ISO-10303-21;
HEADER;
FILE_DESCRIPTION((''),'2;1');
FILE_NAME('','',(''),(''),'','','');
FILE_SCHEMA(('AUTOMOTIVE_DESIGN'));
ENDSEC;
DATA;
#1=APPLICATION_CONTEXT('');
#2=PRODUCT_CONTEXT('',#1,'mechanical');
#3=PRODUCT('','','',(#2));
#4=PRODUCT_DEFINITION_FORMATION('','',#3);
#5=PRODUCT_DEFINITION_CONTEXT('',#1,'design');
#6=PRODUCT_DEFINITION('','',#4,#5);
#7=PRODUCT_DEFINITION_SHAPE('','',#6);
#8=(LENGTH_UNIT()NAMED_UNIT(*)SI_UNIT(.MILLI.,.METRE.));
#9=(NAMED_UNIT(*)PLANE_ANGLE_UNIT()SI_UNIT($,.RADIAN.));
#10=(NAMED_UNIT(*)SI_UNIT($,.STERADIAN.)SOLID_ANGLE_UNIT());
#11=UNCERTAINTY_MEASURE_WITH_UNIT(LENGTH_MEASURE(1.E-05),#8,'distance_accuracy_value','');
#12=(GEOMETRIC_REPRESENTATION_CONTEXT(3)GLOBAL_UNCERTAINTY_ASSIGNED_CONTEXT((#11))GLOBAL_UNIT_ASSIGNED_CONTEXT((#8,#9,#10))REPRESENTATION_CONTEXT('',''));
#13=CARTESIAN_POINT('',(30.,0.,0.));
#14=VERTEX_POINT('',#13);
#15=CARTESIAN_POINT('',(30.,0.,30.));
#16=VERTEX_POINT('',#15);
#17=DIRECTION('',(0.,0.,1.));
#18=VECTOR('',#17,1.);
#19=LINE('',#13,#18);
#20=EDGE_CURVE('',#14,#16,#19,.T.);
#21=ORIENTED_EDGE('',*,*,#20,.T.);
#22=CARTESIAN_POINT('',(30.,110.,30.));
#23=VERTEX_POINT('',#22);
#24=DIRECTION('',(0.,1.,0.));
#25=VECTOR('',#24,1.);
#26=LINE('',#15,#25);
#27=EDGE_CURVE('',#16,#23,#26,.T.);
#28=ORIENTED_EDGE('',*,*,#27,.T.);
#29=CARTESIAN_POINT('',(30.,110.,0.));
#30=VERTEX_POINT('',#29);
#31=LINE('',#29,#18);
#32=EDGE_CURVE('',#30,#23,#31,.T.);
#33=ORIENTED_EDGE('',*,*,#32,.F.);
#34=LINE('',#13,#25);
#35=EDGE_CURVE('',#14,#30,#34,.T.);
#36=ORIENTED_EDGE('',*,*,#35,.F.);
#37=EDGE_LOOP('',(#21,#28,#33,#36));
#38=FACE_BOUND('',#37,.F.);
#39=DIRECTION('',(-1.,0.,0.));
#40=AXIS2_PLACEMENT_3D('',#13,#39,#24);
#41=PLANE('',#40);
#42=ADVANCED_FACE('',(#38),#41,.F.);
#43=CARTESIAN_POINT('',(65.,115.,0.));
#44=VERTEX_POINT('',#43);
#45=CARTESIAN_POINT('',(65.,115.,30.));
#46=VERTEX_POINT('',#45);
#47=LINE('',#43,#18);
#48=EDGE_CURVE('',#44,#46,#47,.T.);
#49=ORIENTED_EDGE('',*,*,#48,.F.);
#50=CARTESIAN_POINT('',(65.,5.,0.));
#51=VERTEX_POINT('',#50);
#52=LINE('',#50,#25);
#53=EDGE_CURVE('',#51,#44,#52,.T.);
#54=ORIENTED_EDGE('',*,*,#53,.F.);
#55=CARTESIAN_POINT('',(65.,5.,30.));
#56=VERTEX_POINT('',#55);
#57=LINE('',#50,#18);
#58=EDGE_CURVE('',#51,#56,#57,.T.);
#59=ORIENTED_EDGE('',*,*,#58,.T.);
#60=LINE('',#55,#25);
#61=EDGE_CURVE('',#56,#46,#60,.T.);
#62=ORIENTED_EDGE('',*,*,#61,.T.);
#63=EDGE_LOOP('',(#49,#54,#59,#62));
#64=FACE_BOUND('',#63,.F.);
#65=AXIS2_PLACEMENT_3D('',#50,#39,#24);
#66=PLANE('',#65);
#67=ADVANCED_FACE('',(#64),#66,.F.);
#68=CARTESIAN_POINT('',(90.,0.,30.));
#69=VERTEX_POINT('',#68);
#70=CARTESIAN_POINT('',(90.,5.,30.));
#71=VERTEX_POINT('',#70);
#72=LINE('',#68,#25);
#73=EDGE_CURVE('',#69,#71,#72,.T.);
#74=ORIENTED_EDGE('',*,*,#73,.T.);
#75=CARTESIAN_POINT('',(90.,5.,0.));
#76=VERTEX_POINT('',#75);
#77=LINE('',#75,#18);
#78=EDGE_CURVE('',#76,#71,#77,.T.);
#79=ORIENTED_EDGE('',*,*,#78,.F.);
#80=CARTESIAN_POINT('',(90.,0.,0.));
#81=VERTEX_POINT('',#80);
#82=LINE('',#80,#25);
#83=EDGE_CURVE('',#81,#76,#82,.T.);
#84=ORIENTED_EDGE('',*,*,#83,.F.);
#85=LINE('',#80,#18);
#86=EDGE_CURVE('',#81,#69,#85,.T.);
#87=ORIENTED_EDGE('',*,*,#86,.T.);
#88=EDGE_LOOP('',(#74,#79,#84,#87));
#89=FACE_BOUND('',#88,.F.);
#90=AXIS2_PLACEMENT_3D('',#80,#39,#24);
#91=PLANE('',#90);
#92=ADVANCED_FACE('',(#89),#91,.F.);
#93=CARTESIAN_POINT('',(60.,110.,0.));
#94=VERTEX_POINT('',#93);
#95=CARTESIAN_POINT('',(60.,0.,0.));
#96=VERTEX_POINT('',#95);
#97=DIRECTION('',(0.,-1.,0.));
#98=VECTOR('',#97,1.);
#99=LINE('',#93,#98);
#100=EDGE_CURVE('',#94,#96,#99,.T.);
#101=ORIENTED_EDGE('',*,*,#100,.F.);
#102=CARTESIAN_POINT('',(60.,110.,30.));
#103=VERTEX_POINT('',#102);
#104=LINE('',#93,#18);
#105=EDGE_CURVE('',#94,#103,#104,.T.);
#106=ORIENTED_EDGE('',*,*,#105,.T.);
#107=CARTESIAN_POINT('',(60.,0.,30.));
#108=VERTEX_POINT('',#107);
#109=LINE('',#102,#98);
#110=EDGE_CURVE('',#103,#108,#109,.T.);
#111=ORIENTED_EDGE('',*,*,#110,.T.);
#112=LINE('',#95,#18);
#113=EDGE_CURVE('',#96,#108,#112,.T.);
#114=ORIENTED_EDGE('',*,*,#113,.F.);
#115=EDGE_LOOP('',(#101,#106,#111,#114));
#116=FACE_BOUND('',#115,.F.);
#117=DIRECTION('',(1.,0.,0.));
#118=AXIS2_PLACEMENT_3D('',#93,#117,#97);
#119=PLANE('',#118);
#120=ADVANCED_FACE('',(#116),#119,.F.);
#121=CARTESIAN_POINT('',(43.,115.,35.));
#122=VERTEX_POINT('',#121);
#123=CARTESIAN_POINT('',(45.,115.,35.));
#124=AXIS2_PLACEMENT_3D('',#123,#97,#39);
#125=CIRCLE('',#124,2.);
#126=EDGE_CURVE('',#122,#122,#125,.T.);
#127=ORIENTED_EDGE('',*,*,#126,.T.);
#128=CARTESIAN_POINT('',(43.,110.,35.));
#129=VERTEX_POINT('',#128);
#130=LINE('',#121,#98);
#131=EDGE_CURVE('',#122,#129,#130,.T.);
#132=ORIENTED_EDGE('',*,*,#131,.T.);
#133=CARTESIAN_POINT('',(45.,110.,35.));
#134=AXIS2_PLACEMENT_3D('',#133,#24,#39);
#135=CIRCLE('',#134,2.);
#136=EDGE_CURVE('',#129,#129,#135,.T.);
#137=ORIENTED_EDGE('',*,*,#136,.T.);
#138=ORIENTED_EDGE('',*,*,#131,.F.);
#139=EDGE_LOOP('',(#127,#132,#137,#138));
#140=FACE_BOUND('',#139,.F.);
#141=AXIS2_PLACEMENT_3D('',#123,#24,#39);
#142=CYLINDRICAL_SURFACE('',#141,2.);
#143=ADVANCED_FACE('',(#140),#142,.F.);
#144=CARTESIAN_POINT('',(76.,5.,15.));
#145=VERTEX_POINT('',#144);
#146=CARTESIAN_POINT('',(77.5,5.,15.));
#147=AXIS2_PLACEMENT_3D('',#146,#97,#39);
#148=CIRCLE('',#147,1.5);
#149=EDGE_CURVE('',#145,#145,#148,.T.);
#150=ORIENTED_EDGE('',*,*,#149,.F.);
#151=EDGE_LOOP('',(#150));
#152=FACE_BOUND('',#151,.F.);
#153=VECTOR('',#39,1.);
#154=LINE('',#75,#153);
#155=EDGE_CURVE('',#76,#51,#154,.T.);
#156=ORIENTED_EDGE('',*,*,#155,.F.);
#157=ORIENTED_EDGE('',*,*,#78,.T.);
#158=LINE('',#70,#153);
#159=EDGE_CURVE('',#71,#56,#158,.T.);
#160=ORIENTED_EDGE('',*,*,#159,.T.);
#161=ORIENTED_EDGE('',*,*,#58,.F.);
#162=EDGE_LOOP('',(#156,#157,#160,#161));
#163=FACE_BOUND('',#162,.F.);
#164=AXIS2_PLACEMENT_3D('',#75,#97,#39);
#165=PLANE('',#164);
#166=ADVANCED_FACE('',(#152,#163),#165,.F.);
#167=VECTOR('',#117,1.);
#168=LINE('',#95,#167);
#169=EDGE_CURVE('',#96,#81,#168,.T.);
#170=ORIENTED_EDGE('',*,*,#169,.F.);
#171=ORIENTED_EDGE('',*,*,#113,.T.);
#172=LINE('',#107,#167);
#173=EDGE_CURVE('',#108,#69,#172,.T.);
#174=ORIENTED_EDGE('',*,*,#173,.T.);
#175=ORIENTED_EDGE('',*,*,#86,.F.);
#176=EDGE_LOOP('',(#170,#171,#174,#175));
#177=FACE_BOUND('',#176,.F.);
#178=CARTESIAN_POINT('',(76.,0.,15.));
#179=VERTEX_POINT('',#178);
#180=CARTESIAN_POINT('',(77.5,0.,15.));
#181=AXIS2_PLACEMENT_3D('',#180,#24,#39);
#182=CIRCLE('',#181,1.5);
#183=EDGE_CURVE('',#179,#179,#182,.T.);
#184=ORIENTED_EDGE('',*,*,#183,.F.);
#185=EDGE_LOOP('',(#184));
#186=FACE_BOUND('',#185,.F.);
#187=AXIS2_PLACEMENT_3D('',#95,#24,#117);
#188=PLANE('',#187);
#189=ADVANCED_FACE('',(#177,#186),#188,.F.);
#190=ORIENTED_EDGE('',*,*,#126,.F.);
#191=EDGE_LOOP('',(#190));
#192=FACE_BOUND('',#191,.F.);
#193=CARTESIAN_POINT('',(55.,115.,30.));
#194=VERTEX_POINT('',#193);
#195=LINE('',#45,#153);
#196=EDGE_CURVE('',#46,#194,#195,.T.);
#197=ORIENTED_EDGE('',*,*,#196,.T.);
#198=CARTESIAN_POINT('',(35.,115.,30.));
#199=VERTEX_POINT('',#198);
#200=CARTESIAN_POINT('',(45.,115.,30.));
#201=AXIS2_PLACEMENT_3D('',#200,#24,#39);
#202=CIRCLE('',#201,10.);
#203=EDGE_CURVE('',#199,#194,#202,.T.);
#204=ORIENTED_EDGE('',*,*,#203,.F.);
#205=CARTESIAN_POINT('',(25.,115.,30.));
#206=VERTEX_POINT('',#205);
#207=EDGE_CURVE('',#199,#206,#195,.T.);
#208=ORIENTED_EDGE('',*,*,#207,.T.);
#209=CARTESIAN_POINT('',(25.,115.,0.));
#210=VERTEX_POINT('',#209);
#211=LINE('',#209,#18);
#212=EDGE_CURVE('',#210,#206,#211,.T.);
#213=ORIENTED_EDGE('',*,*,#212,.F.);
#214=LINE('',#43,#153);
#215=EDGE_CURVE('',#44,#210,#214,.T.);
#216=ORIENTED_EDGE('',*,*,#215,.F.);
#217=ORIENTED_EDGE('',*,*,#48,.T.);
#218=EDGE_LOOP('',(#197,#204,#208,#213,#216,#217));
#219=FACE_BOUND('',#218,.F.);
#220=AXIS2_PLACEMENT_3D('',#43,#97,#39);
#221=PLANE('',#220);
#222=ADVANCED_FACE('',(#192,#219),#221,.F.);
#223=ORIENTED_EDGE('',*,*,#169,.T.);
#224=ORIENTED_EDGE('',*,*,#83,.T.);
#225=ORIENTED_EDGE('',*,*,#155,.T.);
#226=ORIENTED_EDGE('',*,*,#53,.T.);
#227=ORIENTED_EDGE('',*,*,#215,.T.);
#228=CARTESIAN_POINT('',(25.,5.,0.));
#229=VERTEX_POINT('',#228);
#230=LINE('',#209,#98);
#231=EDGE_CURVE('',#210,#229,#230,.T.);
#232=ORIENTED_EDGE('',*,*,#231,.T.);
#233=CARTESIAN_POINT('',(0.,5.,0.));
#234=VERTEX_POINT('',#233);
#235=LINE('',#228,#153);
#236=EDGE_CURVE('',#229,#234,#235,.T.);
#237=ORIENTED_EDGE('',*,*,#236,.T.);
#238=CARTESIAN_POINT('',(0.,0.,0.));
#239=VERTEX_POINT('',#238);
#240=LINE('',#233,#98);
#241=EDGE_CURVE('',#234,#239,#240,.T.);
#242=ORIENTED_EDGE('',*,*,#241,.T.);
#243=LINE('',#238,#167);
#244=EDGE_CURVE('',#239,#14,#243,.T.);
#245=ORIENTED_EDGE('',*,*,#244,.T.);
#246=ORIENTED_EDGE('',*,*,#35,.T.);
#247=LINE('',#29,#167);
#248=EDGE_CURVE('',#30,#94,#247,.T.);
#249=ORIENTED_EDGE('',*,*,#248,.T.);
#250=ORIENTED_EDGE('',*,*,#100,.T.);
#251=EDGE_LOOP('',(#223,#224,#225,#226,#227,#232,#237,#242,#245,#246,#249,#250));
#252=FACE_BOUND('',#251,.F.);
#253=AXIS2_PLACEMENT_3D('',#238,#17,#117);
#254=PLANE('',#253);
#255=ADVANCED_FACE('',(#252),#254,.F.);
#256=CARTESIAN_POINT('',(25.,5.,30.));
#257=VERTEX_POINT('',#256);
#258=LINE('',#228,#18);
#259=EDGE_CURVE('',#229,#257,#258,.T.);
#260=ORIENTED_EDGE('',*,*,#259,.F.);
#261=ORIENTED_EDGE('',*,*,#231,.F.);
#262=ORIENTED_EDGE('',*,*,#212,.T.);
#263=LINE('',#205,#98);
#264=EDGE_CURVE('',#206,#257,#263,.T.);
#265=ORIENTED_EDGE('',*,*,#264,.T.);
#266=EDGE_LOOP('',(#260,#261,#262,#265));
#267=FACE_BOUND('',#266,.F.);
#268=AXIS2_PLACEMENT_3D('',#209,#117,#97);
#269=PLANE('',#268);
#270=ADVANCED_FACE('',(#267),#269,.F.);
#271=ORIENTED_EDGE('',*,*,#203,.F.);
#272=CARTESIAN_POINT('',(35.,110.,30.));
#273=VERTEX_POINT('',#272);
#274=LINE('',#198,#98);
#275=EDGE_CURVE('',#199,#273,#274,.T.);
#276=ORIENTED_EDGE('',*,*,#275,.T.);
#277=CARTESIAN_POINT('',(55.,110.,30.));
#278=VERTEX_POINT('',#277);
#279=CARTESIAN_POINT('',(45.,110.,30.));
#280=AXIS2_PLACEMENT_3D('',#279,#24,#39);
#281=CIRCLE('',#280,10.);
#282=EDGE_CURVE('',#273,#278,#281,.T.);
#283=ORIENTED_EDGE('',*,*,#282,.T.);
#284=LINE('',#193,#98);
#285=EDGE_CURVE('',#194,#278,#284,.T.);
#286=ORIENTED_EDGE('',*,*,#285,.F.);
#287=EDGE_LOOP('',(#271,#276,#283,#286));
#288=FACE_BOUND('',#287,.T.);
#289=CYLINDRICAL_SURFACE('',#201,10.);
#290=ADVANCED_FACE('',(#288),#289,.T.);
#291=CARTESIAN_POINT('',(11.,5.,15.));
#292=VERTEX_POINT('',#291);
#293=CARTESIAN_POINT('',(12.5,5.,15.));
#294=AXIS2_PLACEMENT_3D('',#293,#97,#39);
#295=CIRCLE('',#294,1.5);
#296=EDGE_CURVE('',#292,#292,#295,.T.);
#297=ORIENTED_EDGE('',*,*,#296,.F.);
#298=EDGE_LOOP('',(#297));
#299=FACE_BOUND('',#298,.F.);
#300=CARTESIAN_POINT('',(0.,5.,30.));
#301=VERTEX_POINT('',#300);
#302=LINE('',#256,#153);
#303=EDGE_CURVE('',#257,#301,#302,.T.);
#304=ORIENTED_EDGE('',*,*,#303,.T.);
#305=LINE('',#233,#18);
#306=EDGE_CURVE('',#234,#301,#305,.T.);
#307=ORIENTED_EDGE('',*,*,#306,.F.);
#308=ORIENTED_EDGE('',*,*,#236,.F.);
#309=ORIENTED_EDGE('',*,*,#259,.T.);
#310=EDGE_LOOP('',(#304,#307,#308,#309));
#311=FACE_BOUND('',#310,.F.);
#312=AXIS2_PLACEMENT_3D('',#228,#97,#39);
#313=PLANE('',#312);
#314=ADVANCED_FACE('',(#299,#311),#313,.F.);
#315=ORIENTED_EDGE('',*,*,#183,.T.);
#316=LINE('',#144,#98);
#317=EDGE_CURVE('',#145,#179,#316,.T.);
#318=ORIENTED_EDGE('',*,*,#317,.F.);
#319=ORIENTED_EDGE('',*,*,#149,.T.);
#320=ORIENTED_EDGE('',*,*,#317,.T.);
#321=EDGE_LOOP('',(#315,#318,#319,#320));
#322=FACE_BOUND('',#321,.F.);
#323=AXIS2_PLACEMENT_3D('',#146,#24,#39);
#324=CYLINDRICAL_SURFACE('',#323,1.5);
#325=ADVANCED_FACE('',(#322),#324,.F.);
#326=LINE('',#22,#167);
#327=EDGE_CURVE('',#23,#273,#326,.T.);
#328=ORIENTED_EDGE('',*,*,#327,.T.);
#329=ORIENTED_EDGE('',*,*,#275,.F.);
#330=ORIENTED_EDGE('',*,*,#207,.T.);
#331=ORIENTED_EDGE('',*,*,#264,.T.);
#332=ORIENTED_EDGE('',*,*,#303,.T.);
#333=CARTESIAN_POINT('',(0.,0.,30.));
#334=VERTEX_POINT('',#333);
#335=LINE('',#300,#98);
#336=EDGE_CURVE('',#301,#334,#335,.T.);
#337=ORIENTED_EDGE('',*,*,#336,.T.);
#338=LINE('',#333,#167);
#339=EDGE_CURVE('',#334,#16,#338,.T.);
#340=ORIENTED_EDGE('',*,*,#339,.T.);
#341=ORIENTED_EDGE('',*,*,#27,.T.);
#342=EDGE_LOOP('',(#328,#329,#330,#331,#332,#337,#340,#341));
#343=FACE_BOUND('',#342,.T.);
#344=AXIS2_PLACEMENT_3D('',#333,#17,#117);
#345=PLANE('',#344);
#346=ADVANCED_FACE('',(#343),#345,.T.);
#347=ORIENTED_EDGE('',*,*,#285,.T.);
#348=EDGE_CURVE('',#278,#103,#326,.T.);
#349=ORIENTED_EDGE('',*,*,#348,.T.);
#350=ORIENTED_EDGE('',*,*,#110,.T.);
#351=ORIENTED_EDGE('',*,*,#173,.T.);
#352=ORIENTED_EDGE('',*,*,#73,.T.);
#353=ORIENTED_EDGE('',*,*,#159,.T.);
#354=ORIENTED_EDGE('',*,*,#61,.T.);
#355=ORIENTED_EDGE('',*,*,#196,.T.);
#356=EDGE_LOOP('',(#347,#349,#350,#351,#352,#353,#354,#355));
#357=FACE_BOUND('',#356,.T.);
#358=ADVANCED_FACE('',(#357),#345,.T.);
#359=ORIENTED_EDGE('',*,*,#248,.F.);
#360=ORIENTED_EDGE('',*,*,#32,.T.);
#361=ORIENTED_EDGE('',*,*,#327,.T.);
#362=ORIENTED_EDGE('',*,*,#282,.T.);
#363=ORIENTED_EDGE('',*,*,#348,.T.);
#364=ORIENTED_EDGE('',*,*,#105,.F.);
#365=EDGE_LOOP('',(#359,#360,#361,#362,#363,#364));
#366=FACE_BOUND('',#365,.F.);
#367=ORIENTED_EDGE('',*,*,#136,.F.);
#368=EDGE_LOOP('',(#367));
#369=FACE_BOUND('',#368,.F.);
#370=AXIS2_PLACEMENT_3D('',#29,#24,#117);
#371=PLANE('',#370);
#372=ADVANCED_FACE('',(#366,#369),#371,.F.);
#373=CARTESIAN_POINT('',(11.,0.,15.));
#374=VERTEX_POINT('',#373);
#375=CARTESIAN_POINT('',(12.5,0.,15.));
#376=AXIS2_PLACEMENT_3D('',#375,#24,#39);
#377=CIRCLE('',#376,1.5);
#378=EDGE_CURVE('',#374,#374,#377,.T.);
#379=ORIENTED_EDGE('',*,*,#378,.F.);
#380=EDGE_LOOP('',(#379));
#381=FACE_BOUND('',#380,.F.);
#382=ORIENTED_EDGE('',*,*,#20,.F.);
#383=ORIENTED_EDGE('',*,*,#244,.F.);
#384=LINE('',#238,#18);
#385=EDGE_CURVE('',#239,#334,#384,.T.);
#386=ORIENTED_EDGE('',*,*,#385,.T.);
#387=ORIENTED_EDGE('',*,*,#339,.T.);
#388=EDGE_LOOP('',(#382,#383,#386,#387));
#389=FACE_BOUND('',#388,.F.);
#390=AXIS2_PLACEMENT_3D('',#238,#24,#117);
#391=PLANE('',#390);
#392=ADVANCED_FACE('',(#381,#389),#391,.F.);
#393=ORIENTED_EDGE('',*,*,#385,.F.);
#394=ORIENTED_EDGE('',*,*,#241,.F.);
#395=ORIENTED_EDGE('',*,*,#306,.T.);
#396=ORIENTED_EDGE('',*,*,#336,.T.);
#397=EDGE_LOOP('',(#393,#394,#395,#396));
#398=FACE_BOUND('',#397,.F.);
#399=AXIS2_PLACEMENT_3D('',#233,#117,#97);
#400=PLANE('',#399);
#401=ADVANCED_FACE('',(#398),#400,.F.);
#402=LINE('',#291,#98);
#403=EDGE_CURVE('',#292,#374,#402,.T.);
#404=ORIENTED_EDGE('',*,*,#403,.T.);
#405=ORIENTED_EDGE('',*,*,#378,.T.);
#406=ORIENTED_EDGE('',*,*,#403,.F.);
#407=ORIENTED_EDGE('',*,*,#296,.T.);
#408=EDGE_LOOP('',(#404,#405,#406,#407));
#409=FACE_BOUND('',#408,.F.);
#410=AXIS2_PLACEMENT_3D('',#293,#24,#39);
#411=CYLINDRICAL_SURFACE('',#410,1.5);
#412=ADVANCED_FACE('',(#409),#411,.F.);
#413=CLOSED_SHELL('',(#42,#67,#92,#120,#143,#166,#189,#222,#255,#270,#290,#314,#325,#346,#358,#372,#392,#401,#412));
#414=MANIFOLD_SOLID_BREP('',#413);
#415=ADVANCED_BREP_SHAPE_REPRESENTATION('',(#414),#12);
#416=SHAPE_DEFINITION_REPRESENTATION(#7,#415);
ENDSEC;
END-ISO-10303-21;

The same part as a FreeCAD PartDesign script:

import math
import FreeCAD as App
import Part
import Sketcher
Q = App.Units.Quantity


def add_polygon(sketch, points):
    """Adds a closed chain of lines whose ends are joined by coincident constraints."""
    first, n = sketch.GeometryCount, len(points)
    for a, b in zip(points, points[1:] + points[:1]):
        sketch.addGeometry(Part.LineSegment(App.Vector(*a, 0), App.Vector(*b, 0)), False)
    for i in range(n):
        sketch.addConstraint(Sketcher.Constraint("Coincident", first + i, 2, first + (i + 1) % n, 1))

doc = App.newDocument("Part")
body = doc.addObject("PartDesign::Body", "Body")

# Sketch on XY plane
sketch1 = doc.addObject("Sketcher::SketchObject", "Sketch")
body.addObject(sketch1)
sketch1.AttachmentSupport = (doc.XY_Plane, [""])
sketch1.MapMode = "FlatFace"
add_polygon(sketch1, [(0, 5), (0, 0), (30, 0), (30, 110), (60, 110), (60, 0), (90, 0), (90, 5), (65, 5), (65, 115), (25, 115), (25, 5)])  # lines 0-11
sketch1.addConstraint([
    Sketcher.Constraint("Vertical", 0),
    Sketcher.Constraint("Horizontal", 1),
    Sketcher.Constraint("Vertical", 2),
    Sketcher.Constraint("Horizontal", 3),
    Sketcher.Constraint("Vertical", 4),
    Sketcher.Constraint("Horizontal", 5),
    Sketcher.Constraint("Vertical", 6),
    Sketcher.Constraint("Horizontal", 7),
    Sketcher.Constraint("Vertical", 8),
    Sketcher.Constraint("Horizontal", 9),
    Sketcher.Constraint("Vertical", 10),
    Sketcher.Constraint("Horizontal", 11),
    Sketcher.Constraint("Coincident", 0, 2, -1, 1),
    Sketcher.Constraint("PointOnObject", 4, 2, -1),
    Sketcher.Constraint("Horizontal", 7, 2, 10, 2),
    Sketcher.Constraint("Equal", 1, 3),
    Sketcher.Constraint("Equal", 3, 5),
    Sketcher.Constraint("Equal", 7, 11),
    Sketcher.Constraint("Equal", 4, 8),
    Sketcher.Constraint("DistanceX", 7, 2, 7, 1, Q("25 mm")),
    Sketcher.Constraint("DistanceX", 9, 2, 9, 1, Q("40 mm")),
    Sketcher.Constraint("DistanceY", 0, 2, 0, 1, Q("5 mm")),
    Sketcher.Constraint("DistanceY", 2, 1, 2, 2, Q("110 mm")),
])
pad1 = doc.addObject("PartDesign::Pad", "Pad")
body.addObject(pad1)
pad1.Profile = sketch1
pad1.Length = 30

# Sketch on XZ plane
sketch2 = doc.addObject("Sketcher::SketchObject", "Sketch001")
body.addObject(sketch2)
sketch2.AttachmentSupport = (doc.XZ_Plane, [""])
sketch2.MapMode = "FlatFace"
sketch2.AttachmentOffset = App.Placement(App.Vector(0, 0, -115), App.Rotation())
sketch2.addGeometry([
    Part.ArcOfCircle(Part.Circle(App.Vector(45, 30, 0), App.Vector(0, 0, 1), 10), math.radians(0), math.radians(180)),
    Part.LineSegment(App.Vector(55, 30, 0), App.Vector(35, 30, 0)),
], False)
sketch2.addConstraint([
    Sketcher.Constraint("Coincident", 0, 1, 1, 1),
    Sketcher.Constraint("Coincident", 1, 2, 0, 2),
    Sketcher.Constraint("Horizontal", 1),
    Sketcher.Constraint("Radius", 0, Q("10 mm")),
    Sketcher.Constraint("DistanceX", -1, 1, 0, 3, Q("45 mm")),
    Sketcher.Constraint("DistanceY", -1, 1, 0, 3, Q("30 mm")),
    Sketcher.Constraint("DistanceY", -1, 1, 0, 1, Q("30 mm")),
])
pad2 = doc.addObject("PartDesign::Pad", "Pad001")
body.addObject(pad2)
pad2.Profile = sketch2
pad2.Length = 5

# Sketch on XZ plane
sketch3 = doc.addObject("Sketcher::SketchObject", "Sketch002")
body.addObject(sketch3)
sketch3.AttachmentSupport = (doc.XZ_Plane, [""])
sketch3.MapMode = "FlatFace"
sketch3.AttachmentOffset = App.Placement(App.Vector(0, 0, -115), App.Rotation())
sketch3.addGeometry(Part.Circle(App.Vector(45, 35, 0), App.Vector(0, 0, 1), 2), False)
sketch3.addConstraint([
    Sketcher.Constraint("Diameter", 0, Q("4 mm")),
    Sketcher.Constraint("DistanceX", -1, 1, 0, 3, Q("45 mm")),
    Sketcher.Constraint("DistanceY", -1, 1, 0, 3, Q("35 mm")),
])
pocket1 = doc.addObject("PartDesign::Pocket", "Pocket")
body.addObject(pocket1)
pocket1.Profile = sketch3
pocket1.Length = 5
pocket1.Reversed = True

# Sketch on XZ plane
sketch4 = doc.addObject("Sketcher::SketchObject", "Sketch003")
body.addObject(sketch4)
sketch4.AttachmentSupport = (doc.XZ_Plane, [""])
sketch4.MapMode = "FlatFace"
sketch4.AttachmentOffset = App.Placement(App.Vector(0, 0, -5), App.Rotation())
sketch4.addGeometry([
    Part.Circle(App.Vector(12.5, 15, 0), App.Vector(0, 0, 1), 1.5),
    Part.Circle(App.Vector(77.5, 15, 0), App.Vector(0, 0, 1), 1.5),
], False)
sketch4.addConstraint([
    Sketcher.Constraint("Equal", 0, 1),
    Sketcher.Constraint("Horizontal", 0, 3, 1, 3),
    Sketcher.Constraint("Diameter", 0, Q("3 mm")),
    Sketcher.Constraint("DistanceY", -1, 1, 0, 3, Q("15 mm")),
    Sketcher.Constraint("DistanceX", 0, 3, 1, 3, Q("65 mm")),
    Sketcher.Constraint("DistanceX", -1, 1, 0, 3, Q("12.5 mm")),
])
pocket2 = doc.addObject("PartDesign::Pocket", "Pocket001")
body.addObject(pocket2)
pocket2.Profile = sketch4
pocket2.Length = 5
pocket2.Reversed = True

doc.recompute()
